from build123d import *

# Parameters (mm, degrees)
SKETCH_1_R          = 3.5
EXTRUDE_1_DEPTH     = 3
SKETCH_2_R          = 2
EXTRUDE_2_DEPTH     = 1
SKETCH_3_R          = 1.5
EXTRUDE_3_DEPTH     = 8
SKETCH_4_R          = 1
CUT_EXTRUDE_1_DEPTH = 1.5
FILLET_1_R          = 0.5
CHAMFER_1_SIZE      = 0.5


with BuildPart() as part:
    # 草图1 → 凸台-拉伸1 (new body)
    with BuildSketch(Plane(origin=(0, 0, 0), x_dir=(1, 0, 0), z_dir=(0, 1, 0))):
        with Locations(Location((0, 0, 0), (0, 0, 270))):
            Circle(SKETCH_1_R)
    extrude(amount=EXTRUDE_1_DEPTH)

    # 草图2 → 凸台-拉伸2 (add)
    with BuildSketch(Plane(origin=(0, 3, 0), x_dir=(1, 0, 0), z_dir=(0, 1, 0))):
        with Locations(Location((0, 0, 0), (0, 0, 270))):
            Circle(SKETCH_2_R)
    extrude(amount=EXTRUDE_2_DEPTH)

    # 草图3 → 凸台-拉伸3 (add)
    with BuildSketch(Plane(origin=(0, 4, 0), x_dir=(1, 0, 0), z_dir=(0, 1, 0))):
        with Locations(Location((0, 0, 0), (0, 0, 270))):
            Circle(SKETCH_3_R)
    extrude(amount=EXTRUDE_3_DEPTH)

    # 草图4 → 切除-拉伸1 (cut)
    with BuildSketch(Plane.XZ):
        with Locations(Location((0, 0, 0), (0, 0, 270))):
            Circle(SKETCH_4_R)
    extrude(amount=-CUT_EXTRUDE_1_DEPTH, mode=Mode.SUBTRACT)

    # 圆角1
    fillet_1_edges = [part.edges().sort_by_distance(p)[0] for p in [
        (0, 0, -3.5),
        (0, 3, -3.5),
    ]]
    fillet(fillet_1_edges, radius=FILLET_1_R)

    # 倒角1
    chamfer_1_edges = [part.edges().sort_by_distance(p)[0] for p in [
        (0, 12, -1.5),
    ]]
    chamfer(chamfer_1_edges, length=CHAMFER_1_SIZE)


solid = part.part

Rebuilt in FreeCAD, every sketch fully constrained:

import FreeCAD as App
import Part
import Sketcher


def edges_at(feature, points):
    """Names of the edges that pass closest to the given points."""
    edges = feature.Shape.Edges
    near = lambda p: min(range(len(edges)), key=lambda i: edges[i].distToShape(Part.Vertex(*p))[0])
    return sorted({f"Edge{near(p) + 1}" for p in points})

doc = App.newDocument("Part")
body = doc.addObject("PartDesign::Body", "Body")

# Sketch on XZ plane
sketch1 = body.newObject("Sketcher::SketchObject", "Sketch")
sketch1.AttachmentSupport = (doc.getObject("XZ_Plane"), [""])
sketch1.MapMode = "FlatFace"
sketch1.addGeometry(Part.Circle(App.Vector(0, 0, 0), App.Vector(0, 0, 1), 3.5), False)
sketch1.addConstraint([
    Sketcher.Constraint("Coincident", 0, 3, -1, 1),
    Sketcher.Constraint("Diameter", 0, 7.0),
])
pad1 = body.newObject("PartDesign::Pad", "Pad")
pad1.Profile = sketch1
pad1.Length = 3
pad1.Reversed = True

# Sketch on XZ plane
sketch2 = body.newObject("Sketcher::SketchObject", "Sketch001")
sketch2.AttachmentSupport = (doc.getObject("XZ_Plane"), [""])
sketch2.MapMode = "FlatFace"
sketch2.AttachmentOffset = App.Placement(App.Vector(0, 0, -3), App.Rotation())
sketch2.addGeometry(Part.Circle(App.Vector(0, 0, 0), App.Vector(0, 0, 1), 2), False)
sketch2.addConstraint([
    Sketcher.Constraint("Coincident", 0, 3, -1, 1),
    Sketcher.Constraint("Diameter", 0, 4.0),
])
pad2 = body.newObject("PartDesign::Pad", "Pad001")
pad2.Profile = sketch2
pad2.Length = 1
pad2.Reversed = True

# Sketch on XZ plane
sketch3 = body.newObject("Sketcher::SketchObject", "Sketch002")
sketch3.AttachmentSupport = (doc.getObject("XZ_Plane"), [""])
sketch3.MapMode = "FlatFace"
sketch3.AttachmentOffset = App.Placement(App.Vector(0, 0, -4), App.Rotation())
sketch3.addGeometry(Part.Circle(App.Vector(0, 0, 0), App.Vector(0, 0, 1), 1.5), False)
sketch3.addConstraint([
    Sketcher.Constraint("Coincident", 0, 3, -1, 1),
    Sketcher.Constraint("Diameter", 0, 3.0),
])
pad3 = body.newObject("PartDesign::Pad", "Pad002")
pad3.Profile = sketch3
pad3.Length = 8
pad3.Reversed = True

# Sketch on XZ plane
sketch4 = body.newObject("Sketcher::SketchObject", "Sketch003")
sketch4.AttachmentSupport = (doc.getObject("XZ_Plane"), [""])
sketch4.MapMode = "FlatFace"
sketch4.addGeometry(Part.Circle(App.Vector(0, 0, 0), App.Vector(0, 0, 1), 1), False)
sketch4.addConstraint([
    Sketcher.Constraint("Coincident", 0, 3, -1, 1),
    Sketcher.Constraint("Diameter", 0, 2.0),
])
pocket1 = body.newObject("PartDesign::Pocket", "Pocket")
pocket1.Profile = sketch4
pocket1.Length = 1.5
doc.recompute()

fillet = body.newObject("PartDesign::Fillet", "Fillet")
fillet.Base = (pocket1, edges_at(pocket1, [(0, 0, -3.5), (0, 3, -3.5)]))
fillet.Radius = 0.5
doc.recompute()

chamfer = body.newObject("PartDesign::Chamfer", "Chamfer")
chamfer.Base = (fillet, edges_at(fillet, [(0, 12, -1.5)]))
chamfer.Size = 0.5

doc.recompute()
